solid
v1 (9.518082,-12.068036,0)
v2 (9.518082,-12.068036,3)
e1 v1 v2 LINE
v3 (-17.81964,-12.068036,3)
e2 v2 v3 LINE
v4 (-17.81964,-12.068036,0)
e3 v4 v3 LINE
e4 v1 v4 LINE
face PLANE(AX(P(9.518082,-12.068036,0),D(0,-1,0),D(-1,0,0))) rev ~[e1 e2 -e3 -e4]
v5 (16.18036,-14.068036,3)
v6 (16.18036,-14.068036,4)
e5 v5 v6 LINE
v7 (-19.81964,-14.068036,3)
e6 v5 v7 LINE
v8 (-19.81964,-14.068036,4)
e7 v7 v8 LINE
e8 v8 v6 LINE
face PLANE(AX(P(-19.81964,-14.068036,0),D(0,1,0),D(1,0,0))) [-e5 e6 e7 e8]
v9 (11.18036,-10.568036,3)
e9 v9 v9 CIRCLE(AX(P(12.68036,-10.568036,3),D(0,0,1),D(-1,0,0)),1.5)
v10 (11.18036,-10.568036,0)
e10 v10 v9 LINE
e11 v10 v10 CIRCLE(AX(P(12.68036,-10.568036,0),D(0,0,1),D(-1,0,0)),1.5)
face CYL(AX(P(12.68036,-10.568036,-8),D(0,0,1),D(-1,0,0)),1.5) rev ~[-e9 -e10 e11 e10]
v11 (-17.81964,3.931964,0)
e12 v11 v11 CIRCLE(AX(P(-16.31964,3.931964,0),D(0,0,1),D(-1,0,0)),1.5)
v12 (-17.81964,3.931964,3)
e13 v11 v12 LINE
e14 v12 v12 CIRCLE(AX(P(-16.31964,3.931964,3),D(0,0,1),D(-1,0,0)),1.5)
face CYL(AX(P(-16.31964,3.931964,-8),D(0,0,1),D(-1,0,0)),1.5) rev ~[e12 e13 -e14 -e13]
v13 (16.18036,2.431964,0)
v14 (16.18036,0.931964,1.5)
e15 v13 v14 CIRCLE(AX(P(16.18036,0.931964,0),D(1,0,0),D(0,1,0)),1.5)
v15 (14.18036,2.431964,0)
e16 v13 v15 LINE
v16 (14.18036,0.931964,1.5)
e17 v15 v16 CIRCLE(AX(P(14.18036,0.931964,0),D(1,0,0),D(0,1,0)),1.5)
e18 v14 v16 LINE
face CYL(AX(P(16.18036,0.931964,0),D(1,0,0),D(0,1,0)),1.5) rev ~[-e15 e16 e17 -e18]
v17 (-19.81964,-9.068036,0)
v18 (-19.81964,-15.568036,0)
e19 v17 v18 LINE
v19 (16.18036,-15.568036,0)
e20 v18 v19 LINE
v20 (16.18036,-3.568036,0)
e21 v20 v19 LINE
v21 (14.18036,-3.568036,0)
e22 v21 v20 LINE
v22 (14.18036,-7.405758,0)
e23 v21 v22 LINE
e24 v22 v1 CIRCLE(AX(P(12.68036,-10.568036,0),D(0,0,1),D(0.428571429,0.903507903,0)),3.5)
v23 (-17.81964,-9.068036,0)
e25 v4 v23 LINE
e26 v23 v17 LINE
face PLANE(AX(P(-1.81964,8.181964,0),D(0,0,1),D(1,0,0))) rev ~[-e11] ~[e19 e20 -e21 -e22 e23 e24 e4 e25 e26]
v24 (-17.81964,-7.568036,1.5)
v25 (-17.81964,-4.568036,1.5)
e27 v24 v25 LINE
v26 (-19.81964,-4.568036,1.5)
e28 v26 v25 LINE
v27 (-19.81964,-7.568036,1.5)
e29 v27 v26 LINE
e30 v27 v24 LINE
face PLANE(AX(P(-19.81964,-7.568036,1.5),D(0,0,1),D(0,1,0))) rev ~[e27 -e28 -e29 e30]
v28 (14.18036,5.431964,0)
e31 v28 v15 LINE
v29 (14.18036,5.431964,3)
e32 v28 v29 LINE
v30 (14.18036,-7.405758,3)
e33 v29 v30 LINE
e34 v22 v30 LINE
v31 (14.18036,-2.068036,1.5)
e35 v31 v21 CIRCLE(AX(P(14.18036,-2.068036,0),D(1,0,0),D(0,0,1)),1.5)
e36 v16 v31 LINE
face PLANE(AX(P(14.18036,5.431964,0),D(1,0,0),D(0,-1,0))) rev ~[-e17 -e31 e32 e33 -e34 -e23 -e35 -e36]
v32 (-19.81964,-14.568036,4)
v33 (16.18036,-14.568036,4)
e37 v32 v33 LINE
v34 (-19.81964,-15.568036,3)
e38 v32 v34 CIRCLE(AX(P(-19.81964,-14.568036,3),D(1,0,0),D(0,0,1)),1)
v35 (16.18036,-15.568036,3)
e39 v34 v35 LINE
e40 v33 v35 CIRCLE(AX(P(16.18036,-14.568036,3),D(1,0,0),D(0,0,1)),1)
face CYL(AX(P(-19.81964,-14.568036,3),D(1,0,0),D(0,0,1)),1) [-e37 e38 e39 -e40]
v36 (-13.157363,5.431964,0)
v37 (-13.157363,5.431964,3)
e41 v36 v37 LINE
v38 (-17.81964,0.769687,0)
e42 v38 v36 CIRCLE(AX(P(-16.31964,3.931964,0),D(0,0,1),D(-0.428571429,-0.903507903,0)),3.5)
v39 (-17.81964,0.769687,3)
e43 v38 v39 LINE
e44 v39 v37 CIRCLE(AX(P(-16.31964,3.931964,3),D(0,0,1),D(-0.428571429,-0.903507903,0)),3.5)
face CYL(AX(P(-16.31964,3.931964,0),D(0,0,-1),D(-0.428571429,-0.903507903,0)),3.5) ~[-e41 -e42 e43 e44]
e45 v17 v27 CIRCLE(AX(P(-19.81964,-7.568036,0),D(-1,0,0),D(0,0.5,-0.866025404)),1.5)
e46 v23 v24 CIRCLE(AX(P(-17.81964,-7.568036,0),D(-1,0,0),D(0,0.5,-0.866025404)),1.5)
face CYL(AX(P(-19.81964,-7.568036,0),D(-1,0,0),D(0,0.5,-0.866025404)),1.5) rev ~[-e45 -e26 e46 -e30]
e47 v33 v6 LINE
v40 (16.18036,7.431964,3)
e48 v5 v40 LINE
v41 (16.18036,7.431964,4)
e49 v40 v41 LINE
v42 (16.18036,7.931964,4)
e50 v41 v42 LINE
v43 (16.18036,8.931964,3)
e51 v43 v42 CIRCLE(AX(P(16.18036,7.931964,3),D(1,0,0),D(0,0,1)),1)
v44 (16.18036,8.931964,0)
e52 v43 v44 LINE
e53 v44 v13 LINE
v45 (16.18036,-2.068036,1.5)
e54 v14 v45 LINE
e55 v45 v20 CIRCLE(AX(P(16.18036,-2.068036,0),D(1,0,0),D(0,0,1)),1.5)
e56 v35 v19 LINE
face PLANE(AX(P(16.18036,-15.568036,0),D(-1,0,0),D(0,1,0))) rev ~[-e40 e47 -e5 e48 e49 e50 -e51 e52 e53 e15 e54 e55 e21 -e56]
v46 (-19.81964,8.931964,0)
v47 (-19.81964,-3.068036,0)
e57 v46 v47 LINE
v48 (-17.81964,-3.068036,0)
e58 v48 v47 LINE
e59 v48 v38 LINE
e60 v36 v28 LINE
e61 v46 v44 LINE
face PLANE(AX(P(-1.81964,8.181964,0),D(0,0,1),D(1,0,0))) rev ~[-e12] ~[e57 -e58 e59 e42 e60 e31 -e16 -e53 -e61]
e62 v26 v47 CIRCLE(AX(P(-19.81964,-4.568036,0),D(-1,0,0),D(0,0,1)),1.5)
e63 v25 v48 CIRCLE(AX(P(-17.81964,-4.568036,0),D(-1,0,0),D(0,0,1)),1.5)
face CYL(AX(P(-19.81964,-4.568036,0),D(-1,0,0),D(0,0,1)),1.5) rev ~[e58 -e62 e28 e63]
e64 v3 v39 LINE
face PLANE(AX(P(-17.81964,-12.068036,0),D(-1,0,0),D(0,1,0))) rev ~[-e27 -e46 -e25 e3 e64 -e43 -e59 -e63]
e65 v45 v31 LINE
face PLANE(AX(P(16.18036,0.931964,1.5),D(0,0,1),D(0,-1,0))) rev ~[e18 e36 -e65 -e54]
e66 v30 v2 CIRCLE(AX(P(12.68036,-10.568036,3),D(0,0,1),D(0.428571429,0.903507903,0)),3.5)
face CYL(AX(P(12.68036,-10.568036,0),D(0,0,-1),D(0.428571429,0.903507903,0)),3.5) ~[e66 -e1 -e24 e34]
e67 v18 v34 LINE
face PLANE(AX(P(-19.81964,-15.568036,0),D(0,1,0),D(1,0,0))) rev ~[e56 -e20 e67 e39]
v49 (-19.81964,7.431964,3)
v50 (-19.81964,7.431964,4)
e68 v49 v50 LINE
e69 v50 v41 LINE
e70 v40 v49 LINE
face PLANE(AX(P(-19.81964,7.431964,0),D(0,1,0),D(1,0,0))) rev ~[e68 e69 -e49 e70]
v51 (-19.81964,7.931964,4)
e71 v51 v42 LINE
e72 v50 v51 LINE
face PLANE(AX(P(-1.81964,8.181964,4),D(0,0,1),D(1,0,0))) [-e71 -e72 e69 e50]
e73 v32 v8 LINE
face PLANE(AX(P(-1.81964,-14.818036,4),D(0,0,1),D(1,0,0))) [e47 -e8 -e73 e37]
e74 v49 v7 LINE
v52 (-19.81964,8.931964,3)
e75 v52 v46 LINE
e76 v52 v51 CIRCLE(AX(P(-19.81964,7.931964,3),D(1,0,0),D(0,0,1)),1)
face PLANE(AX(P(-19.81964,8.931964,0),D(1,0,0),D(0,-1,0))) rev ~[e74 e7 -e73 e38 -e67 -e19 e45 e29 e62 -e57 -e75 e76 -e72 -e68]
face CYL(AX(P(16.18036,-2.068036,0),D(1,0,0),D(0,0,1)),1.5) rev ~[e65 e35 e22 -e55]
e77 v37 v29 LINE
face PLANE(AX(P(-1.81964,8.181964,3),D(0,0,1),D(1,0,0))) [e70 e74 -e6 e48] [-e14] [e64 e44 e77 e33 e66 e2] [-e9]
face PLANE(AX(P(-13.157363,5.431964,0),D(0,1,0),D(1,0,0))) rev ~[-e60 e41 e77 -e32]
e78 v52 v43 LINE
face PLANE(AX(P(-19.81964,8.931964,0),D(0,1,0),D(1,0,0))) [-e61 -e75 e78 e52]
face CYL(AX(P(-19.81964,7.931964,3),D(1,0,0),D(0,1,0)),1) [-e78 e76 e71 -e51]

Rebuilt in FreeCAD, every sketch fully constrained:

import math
import FreeCAD as App
import Part
import Sketcher


def edges_at(feature, points):
    """Names of the edges that pass closest to the given points."""
    edges = feature.Shape.Edges
    near = lambda p: min(range(len(edges)), key=lambda i: edges[i].distToShape(Part.Vertex(*p))[0])
    return sorted({f"Edge{near(p) + 1}" for p in points})

doc = App.newDocument("Part")
body = doc.addObject("PartDesign::Body", "Body")

# Sketch on XY plane
sketch1 = body.newObject("Sketcher::SketchObject", "Sketch")
sketch1.AttachmentSupport = (doc.getObject("XY_Plane"), [""])
sketch1.MapMode = "FlatFace"
sketch1.addGeometry([
    Part.LineSegment(App.Vector(-19.8, 8.9, 0), App.Vector(-19.8, -15.6, 0)),  # 0
    Part.LineSegment(App.Vector(-19.8, -15.6, 0), App.Vector(16.2, -15.6, 0)),  # 1
    Part.LineSegment(App.Vector(16.2, -15.6, 0), App.Vector(16.2, 8.9, 0)),  # 2
    Part.LineSegment(App.Vector(16.2, 8.9, 0), App.Vector(-19.8, 8.9, 0)),  # 3
    Part.LineSegment(App.Vector(-17.8, -12.1, 0), App.Vector(-17.8, 0.8, 0)),  # 4
    Part.ArcOfCircle(Part.Circle(App.Vector(-16.3, 3.9, 0), App.Vector(0, 0, 1), 3.5), math.radians(-115), math.radians(25)),  # 5
    Part.LineSegment(App.Vector(-13.2, 5.4, 0), App.Vector(14.2, 5.4, 0)),  # 6
    Part.LineSegment(App.Vector(14.2, 5.4, 0), App.Vector(14.2, -7.4, 0)),  # 7
    Part.ArcOfCircle(Part.Circle(App.Vector(12.7, -10.6, 0), App.Vector(0, 0, 1), 3.5), math.radians(65), math.radians(205)),  # 8
    Part.LineSegment(App.Vector(9.5, -12.1, 0), App.Vector(-17.8, -12.1, 0)),  # 9
], False)
sketch1.addConstraint([
    Sketcher.Constraint("Coincident", 0, 2, 1, 1),
    Sketcher.Constraint("Coincident", 1, 2, 2, 1),
    Sketcher.Constraint("Coincident", 2, 2, 3, 1),
    Sketcher.Constraint("Coincident", 3, 2, 0, 1),
    Sketcher.Constraint("Coincident", 4, 2, 5, 1),
    Sketcher.Constraint("Coincident", 5, 2, 6, 1),
    Sketcher.Constraint("Coincident", 6, 2, 7, 1),
    Sketcher.Constraint("Coincident", 7, 2, 8, 1),
    Sketcher.Constraint("Coincident", 8, 2, 9, 1),
    Sketcher.Constraint("Coincident", 9, 2, 4, 1),
    Sketcher.Constraint("Vertical", 0),
    Sketcher.Constraint("Horizontal", 1),
    Sketcher.Constraint("Vertical", 2),
    Sketcher.Constraint("Horizontal", 3),
    Sketcher.Constraint("Vertical", 4),
    Sketcher.Constraint("Horizontal", 6),
    Sketcher.Constraint("Vertical", 7),
    Sketcher.Constraint("Horizontal", 9),
    Sketcher.Constraint("Equal", 5, 8),
    Sketcher.Constraint("Equal", 6, 9),
    Sketcher.Constraint("Equal", 4, 7),
    Sketcher.Constraint("Radius", 5, 3.5),
    Sketcher.Constraint("DistanceX", 1, 1, 1, 2, 36.0),
    Sketcher.Constraint("DistanceY", 0, 2, 0, 1, 24.5),
    Sketcher.Constraint("DistanceX", 5, 3, 8, 3, 29.0),
    Sketcher.Constraint("DistanceY", 0, 2, 8, 3, 5.0),
    Sketcher.Constraint("DistanceY", 5, 3, 2, 2, 5.0),
    Sketcher.Constraint("DistanceX", 3, 2, 4, 2, 2.0),
    Sketcher.Constraint("DistanceY", 0, 2, 5, 2, 21.0),
    Sketcher.Constraint("DistanceX", 6, 2, 2, 2, 2.0),
    Sketcher.Constraint("DistanceX", 5, 3, -1, 1, 16.31964),
    Sketcher.Constraint("DistanceY", -1, 1, 5, 3, 3.931964),
])
pad1 = body.newObject("PartDesign::Pad", "Pad")
pad1.Profile = sketch1
pad1.Length = 3

# Sketch on XY plane
sketch2 = body.newObject("Sketcher::SketchObject", "Sketch001")
sketch2.AttachmentSupport = (doc.getObject("XY_Plane"), [""])
sketch2.MapMode = "FlatFace"
sketch2.addGeometry([
    Part.LineSegment(App.Vector(-19.8, 8.9, 0), App.Vector(-19.8, 7.4, 0)),  # 0
    Part.LineSegment(App.Vector(-19.8, 7.4, 0), App.Vector(16.2, 7.4, 0)),  # 1
    Part.LineSegment(App.Vector(16.2, 7.4, 0), App.Vector(16.2, 8.9, 0)),  # 2
    Part.LineSegment(App.Vector(16.2, 8.9, 0), App.Vector(-19.8, 8.9, 0)),  # 3
    Part.LineSegment(App.Vector(-19.8, -14.1, 0), App.Vector(-19.8, -15.6, 0)),  # 4
    Part.LineSegment(App.Vector(-19.8, -15.6, 0), App.Vector(16.2, -15.6, 0)),  # 5
    Part.LineSegment(App.Vector(16.2, -15.6, 0), App.Vector(16.2, -14.1, 0)),  # 6
    Part.LineSegment(App.Vector(16.2, -14.1, 0), App.Vector(-19.8, -14.1, 0)),  # 7
], False)
sketch2.addConstraint([
    Sketcher.Constraint("Coincident", 0, 2, 1, 1),
    Sketcher.Constraint("Coincident", 1, 2, 2, 1),
    Sketcher.Constraint("Coincident", 2, 2, 3, 1),
    Sketcher.Constraint("Coincident", 3, 2, 0, 1),
    Sketcher.Constraint("Coincident", 4, 2, 5, 1),
    Sketcher.Constraint("Coincident", 5, 2, 6, 1),
    Sketcher.Constraint("Coincident", 6, 2, 7, 1),
    Sketcher.Constraint("Coincident", 7, 2, 4, 1),
    Sketcher.Constraint("Vertical", 0),
    Sketcher.Constraint("Horizontal", 1),
    Sketcher.Constraint("Vertical", 2),
    Sketcher.Constraint("Horizontal", 3),
    Sketcher.Constraint("Vertical", 4),
    Sketcher.Constraint("Horizontal", 5),
    Sketcher.Constraint("Vertical", 6),
    Sketcher.Constraint("Horizontal", 7),
    Sketcher.Constraint("Vertical", 3, 2, 4, 2),
    Sketcher.Constraint("Vertical", 2, 2, 5, 2),
    Sketcher.Constraint("Equal", 2, 4),
    Sketcher.Constraint("DistanceX", 1, 1, 1, 2, 36.0),
    Sketcher.Constraint("DistanceY", 0, 2, 0, 1, 1.5),
    Sketcher.Constraint("DistanceY", 4, 2, 0, 2, 23.0),
    Sketcher.Constraint("DistanceX", 0, 2, -1, 1, 19.81964),
    Sketcher.Constraint("DistanceY", -1, 1, 0, 2, 7.431964),
])
pad2 = body.newObject("PartDesign::Pad", "Pad001")
pad2.Profile = sketch2
pad2.Length = 4

# Sketch on XY plane
sketch3 = body.newObject("Sketcher::SketchObject", "Sketch002")
sketch3.AttachmentSupport = (doc.getObject("XY_Plane"), [""])
sketch3.MapMode = "FlatFace"
sketch3.addGeometry([
    Part.Circle(App.Vector(12.7, -10.6, 0), App.Vector(0, 0, 1), 1.5),
    Part.Circle(App.Vector(-16.3, 3.9, 0), App.Vector(0, 0, 1), 1.5),
], False)
sketch3.addConstraint([
    Sketcher.Constraint("Equal", 0, 1),
    Sketcher.Constraint("Diameter", 0, 3.0),
    Sketcher.Constraint("DistanceX", 1, 3, 0, 3, 29.0),
    Sketcher.Constraint("DistanceY", 0, 3, 1, 3, 14.5),
    Sketcher.Constraint("DistanceX", -1, 1, 0, 3, 12.68036),
    Sketcher.Constraint("DistanceY", 0, 3, -1, 1, 10.568036),
])
doc.recompute()
hole = body.newObject("PartDesign::Hole", "Hole")
hole.Profile = sketch3
hole.ThreadType = "None"
hole.Diameter = 3
hole.DepthType = "Dimension"
hole.Depth = 8
hole.DrillPoint = "Angled"
hole.DrillPointAngle = 118
hole.Reversed = True
doc.recompute()

fillet = body.newObject("PartDesign::Fillet", "Fillet")
fillet.Base = (hole, edges_at(hole, [(-1.82, 8.932, 4), (-1.82, -15.568, 4)]))
fillet.Radius = 1

# Sketch on YZ plane
sketch4 = body.newObject("Sketcher::SketchObject", "Sketch003")
sketch4.AttachmentSupport = (doc.getObject("YZ_Plane"), [""])
sketch4.MapMode = "FlatFace"
sketch4.AttachmentOffset = App.Placement(App.Vector(0, 0, -19.81964), App.Rotation())
sketch4.addGeometry([
    Part.LineSegment(App.Vector(-7.6, 1.5, 0), App.Vector(-4.6, 1.5, 0)),
    Part.ArcOfCircle(Part.Circle(App.Vector(-4.6, 0, 0), App.Vector(0, 0, 1), 1.5), math.radians(-120), math.radians(90)),
    Part.ArcOfCircle(Part.Circle(App.Vector(-6.1, 0, 0), App.Vector(0, 0, 1), 1.5), math.radians(-120), math.radians(-60)),
    Part.ArcOfCircle(Part.Circle(App.Vector(-7.6, 0, 0), App.Vector(0, 0, 1), 1.5), math.radians(90), math.radians(300)),
], False)
sketch4.addConstraint([
    Sketcher.Constraint("Tangent", 0, 2, 1, 2),
    Sketcher.Constraint("Coincident", 1, 1, 2, 2),
    Sketcher.Constraint("Coincident", 2, 1, 3, 2),
    Sketcher.Constraint("Tangent", 3, 1, 0, 1),
    Sketcher.Constraint("Horizontal", 0),
    Sketcher.Constraint("Equal", 1, 2),
    Sketcher.Constraint("Equal", 2, 3),
    Sketcher.Constraint("PointOnObject", 1, 3, -1),
    Sketcher.Constraint("PointOnObject", 2, 3, -1),
    Sketcher.Constraint("Horizontal", 1, 1, 2, 1),
    Sketcher.Constraint("Radius", 1, 1.5),
    Sketcher.Constraint("DistanceX", 0, 1, 0, 2, 3.0),
    Sketcher.Constraint("DistanceX", 1, 3, -1, 1, 4.568036),
])
pocket1 = body.newObject("PartDesign::Pocket", "Pocket")
pocket1.Profile = sketch4
pocket1.Length = 25
pocket1.Reversed = True

# Sketch on YZ plane
sketch5 = body.newObject("Sketcher::SketchObject", "Sketch004")
sketch5.AttachmentSupport = (doc.getObject("YZ_Plane"), [""])
sketch5.MapMode = "FlatFace"
sketch5.AttachmentOffset = App.Placement(App.Vector(0, 0, 16.18036), App.Rotation())
sketch5.addGeometry([
    Part.ArcOfCircle(Part.Circle(App.Vector(0.9, 0, 0), App.Vector(0, 0, 1), 1.5), math.radians(180), math.radians(360)),
    Part.ArcOfCircle(Part.Circle(App.Vector(0.9, 0, 0), App.Vector(0, 0, 1), 1.5), math.radians(0), math.radians(90)),
    Part.LineSegment(App.Vector(0.9, 1.5, 0), App.Vector(-2.1, 1.5, 0)),
    Part.ArcOfCircle(Part.Circle(App.Vector(-2.1, 0, 0), App.Vector(0, 0, 1), 1.5), math.radians(90), math.radians(360)),
], False)
sketch5.addConstraint([
    Sketcher.Constraint("Tangent", 0, 2, 1, 1),
    Sketcher.Constraint("Tangent", 1, 2, 2, 1),
    Sketcher.Constraint("Tangent", 2, 2, 3, 1),
    Sketcher.Constraint("Tangent", 3, 2, 0, 1),
    Sketcher.Constraint("Horizontal", 2),
    Sketcher.Constraint("Equal", 0, 1),
    Sketcher.Constraint("Equal", 1, 3),
    Sketcher.Constraint("PointOnObject", 0, 3, -1),
    Sketcher.Constraint("PointOnObject", 0, 2, -1),
    Sketcher.Constraint("Radius", 0, 1.5),
    Sketcher.Constraint("DistanceX", -1, 1, 0, 3, 0.931964),
])
pocket2 = body.newObject("PartDesign::Pocket", "Pocket001")
pocket2.Profile = sketch5
pocket2.Length = 25

doc.recompute()
